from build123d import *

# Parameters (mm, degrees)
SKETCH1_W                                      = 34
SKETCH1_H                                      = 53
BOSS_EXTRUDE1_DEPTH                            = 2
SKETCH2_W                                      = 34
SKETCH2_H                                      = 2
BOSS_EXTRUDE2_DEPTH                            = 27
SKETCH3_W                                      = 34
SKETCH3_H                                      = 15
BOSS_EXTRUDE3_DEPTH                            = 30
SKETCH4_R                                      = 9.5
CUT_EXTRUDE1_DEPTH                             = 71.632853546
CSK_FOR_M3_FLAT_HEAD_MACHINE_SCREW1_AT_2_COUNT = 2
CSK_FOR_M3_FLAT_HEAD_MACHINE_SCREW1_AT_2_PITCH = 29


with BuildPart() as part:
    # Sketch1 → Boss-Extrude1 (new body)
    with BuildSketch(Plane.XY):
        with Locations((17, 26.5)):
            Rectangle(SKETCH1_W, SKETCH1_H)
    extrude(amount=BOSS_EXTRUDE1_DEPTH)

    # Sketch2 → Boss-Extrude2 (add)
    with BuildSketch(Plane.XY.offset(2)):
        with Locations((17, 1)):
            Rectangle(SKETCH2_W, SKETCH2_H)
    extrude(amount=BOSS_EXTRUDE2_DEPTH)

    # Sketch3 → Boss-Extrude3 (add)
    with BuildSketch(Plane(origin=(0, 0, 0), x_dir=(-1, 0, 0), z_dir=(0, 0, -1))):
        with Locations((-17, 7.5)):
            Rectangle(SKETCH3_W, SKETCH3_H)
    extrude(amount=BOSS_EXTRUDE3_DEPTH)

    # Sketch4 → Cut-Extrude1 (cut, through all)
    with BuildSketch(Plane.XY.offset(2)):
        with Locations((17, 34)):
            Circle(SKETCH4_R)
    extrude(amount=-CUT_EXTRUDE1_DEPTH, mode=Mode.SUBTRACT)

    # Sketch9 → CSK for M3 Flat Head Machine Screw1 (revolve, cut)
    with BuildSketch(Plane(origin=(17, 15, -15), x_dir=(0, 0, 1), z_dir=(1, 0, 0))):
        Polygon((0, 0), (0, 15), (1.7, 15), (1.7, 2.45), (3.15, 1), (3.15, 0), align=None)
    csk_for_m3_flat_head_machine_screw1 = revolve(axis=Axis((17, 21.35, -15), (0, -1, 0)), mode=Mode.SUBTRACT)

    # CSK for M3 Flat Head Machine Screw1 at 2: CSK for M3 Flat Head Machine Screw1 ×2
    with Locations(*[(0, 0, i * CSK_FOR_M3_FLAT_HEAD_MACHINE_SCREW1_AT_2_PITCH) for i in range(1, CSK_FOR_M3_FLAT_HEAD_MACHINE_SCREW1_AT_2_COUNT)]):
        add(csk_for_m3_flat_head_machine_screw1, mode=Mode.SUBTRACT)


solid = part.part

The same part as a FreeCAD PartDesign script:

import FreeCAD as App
import Part
import Sketcher
Q = App.Units.Quantity

doc = App.newDocument("Part")
params = doc.addObject("Spreadsheet::Sheet", "Params")
for row, (alias, value) in enumerate([
    ("sketch1_width", "34 mm"),
    ("sketch1_height", "53 mm"),
    ("pad1_length", "2 mm"),
    ("sketch2_width", "34 mm"),
    ("sketch2_height", "2 mm"),
    ("pad2_length", "27 mm"),
    ("sketch3_width", "34 mm"),
    ("sketch3_height", "15 mm"),
    ("pad3_length", "30 mm"),
    ("sketch4_diameter", "19 mm"),
    ("sketch5_width", "15 mm"),
    ("sketch5_width2", "1 mm"),
    ("sketch5_height", "1.7 mm"),
    ("sketch5_width3", "12.55 mm"),
    ("groove_angle", "360 deg"),
    ("linearpattern_pitch", "29 mm"),
], start=1):
    params.set(f"A{row}", alias)
    params.set(f"B{row}", "=" + value)
    params.setAlias(f"B{row}", alias)

body = doc.addObject("PartDesign::Body", "Body")

# Sketch on XY plane
sketch1 = doc.addObject("Sketcher::SketchObject", "Sketch")
body.addObject(sketch1)
sketch1.AttachmentSupport = (doc.XY_Plane, [""])
sketch1.MapMode = "FlatFace"
sketch1.addGeometry([
    Part.LineSegment(App.Vector(0, 53, 0), App.Vector(0, 0, 0)),
    Part.LineSegment(App.Vector(0, 0, 0), App.Vector(34, 0, 0)),
    Part.LineSegment(App.Vector(34, 0, 0), App.Vector(34, 53, 0)),
    Part.LineSegment(App.Vector(34, 53, 0), App.Vector(0, 53, 0)),
], False)
sketch1.addConstraint([
    Sketcher.Constraint("Coincident", 0, 2, 1, 1),
    Sketcher.Constraint("Coincident", 1, 2, 2, 1),
    Sketcher.Constraint("Coincident", 2, 2, 3, 1),
    Sketcher.Constraint("Coincident", 3, 2, 0, 1),
    Sketcher.Constraint("Vertical", 0),
    Sketcher.Constraint("Horizontal", 1),
    Sketcher.Constraint("Vertical", 2),
    Sketcher.Constraint("Horizontal", 3),
    Sketcher.Constraint("Coincident", 0, 2, -1, 1),
    Sketcher.Constraint("DistanceX", 1, 1, 1, 2, 34.0),
    Sketcher.Constraint("DistanceY", 0, 2, 0, 1, 53.0),
])
sketch1.setExpression("Constraints[9]", "Params.sketch1_width")
sketch1.setExpression("Constraints[10]", "Params.sketch1_height")
pad1 = doc.addObject("PartDesign::Pad", "Pad")
body.addObject(pad1)
pad1.Profile = sketch1
pad1.setExpression("Length", "Params.pad1_length")

# Sketch on XY plane
sketch2 = doc.addObject("Sketcher::SketchObject", "Sketch001")
body.addObject(sketch2)
sketch2.AttachmentSupport = (doc.XY_Plane, [""])
sketch2.MapMode = "FlatFace"
sketch2.AttachmentOffset = App.Placement(App.Vector(0, 0, 2), App.Rotation())
sketch2.addGeometry([
    Part.LineSegment(App.Vector(0, 2, 0), App.Vector(0, 0, 0)),
    Part.LineSegment(App.Vector(0, 0, 0), App.Vector(34, 0, 0)),
    Part.LineSegment(App.Vector(34, 0, 0), App.Vector(34, 2, 0)),
    Part.LineSegment(App.Vector(34, 2, 0), App.Vector(0, 2, 0)),
], False)
sketch2.addConstraint([
    Sketcher.Constraint("Coincident", 0, 2, 1, 1),
    Sketcher.Constraint("Coincident", 1, 2, 2, 1),
    Sketcher.Constraint("Coincident", 2, 2, 3, 1),
    Sketcher.Constraint("Coincident", 3, 2, 0, 1),
    Sketcher.Constraint("Vertical", 0),
    Sketcher.Constraint("Horizontal", 1),
    Sketcher.Constraint("Vertical", 2),
    Sketcher.Constraint("Horizontal", 3),
    Sketcher.Constraint("Coincident", 0, 2, -1, 1),
    Sketcher.Constraint("DistanceX", 1, 1, 1, 2, 34.0),
    Sketcher.Constraint("DistanceY", 0, 2, 0, 1, 2.0),
])
sketch2.setExpression("Constraints[9]", "Params.sketch2_width")
sketch2.setExpression("Constraints[10]", "Params.sketch2_height")
pad2 = doc.addObject("PartDesign::Pad", "Pad001")
body.addObject(pad2)
pad2.Profile = sketch2
pad2.setExpression("Length", "Params.pad2_length")

# Sketch on XY plane
sketch3 = doc.addObject("Sketcher::SketchObject", "Sketch002")
body.addObject(sketch3)
sketch3.AttachmentSupport = (doc.XY_Plane, [""])
sketch3.MapMode = "FlatFace"
sketch3.addGeometry([
    Part.LineSegment(App.Vector(34, 15, 0), App.Vector(34, 0, 0)),
    Part.LineSegment(App.Vector(34, 0, 0), App.Vector(0, 0, 0)),
    Part.LineSegment(App.Vector(0, 0, 0), App.Vector(0, 15, 0)),
    Part.LineSegment(App.Vector(0, 15, 0), App.Vector(34, 15, 0)),
], False)
sketch3.addConstraint([
    Sketcher.Constraint("Coincident", 0, 2, 1, 1),
    Sketcher.Constraint("Coincident", 1, 2, 2, 1),
    Sketcher.Constraint("Coincident", 2, 2, 3, 1),
    Sketcher.Constraint("Coincident", 3, 2, 0, 1),
    Sketcher.Constraint("Vertical", 0),
    Sketcher.Constraint("Horizontal", 1),
    Sketcher.Constraint("Vertical", 2),
    Sketcher.Constraint("Horizontal", 3),
    Sketcher.Constraint("Coincident", 1, 2, -1, 1),
    Sketcher.Constraint("DistanceX", 1, 2, 1, 1, 34.0),
    Sketcher.Constraint("DistanceY", 0, 2, 0, 1, 15.0),
])
sketch3.setExpression("Constraints[9]", "Params.sketch3_width")
sketch3.setExpression("Constraints[10]", "Params.sketch3_height")
pad3 = doc.addObject("PartDesign::Pad", "Pad002")
body.addObject(pad3)
pad3.Profile = sketch3
pad3.setExpression("Length", "Params.pad3_length")
pad3.Reversed = True

# Sketch on XY plane
sketch4 = doc.addObject("Sketcher::SketchObject", "Sketch003")
body.addObject(sketch4)
sketch4.AttachmentSupport = (doc.XY_Plane, [""])
sketch4.MapMode = "FlatFace"
sketch4.AttachmentOffset = App.Placement(App.Vector(0, 0, 2), App.Rotation())
sketch4.addGeometry(Part.Circle(App.Vector(17, 34, 0), App.Vector(0, 0, 1), 10), False)
sketch4.addConstraint([
    Sketcher.Constraint("Diameter", 0, 19.0),
    Sketcher.Constraint("DistanceX", -1, 1, 0, 3, 17.0),
    Sketcher.Constraint("DistanceY", -1, 1, 0, 3, 34.0),
])
sketch4.setExpression("Constraints[0]", "Params.sketch4_diameter")
pocket1 = doc.addObject("PartDesign::Pocket", "Pocket")
body.addObject(pocket1)
pocket1.Profile = sketch4
pocket1.Type = "ThroughAll"

# Sketch on YZ plane
sketch5 = doc.addObject("Sketcher::SketchObject", "Sketch004")
body.addObject(sketch5)
sketch5.AttachmentSupport = (doc.YZ_Plane, [""])
sketch5.MapMode = "FlatFace"
sketch5.AttachmentOffset = App.Placement(App.Vector(0, 0, 17), App.Rotation())
sketch5.addGeometry([
    Part.LineSegment(App.Vector(0, -15, 0), App.Vector(15, -15, 0)),  # 0
    Part.LineSegment(App.Vector(15, -15, 0), App.Vector(15, -11.8, 0)),  # 1
    Part.LineSegment(App.Vector(15, -11.8, 0), App.Vector(14, -11.8, 0)),  # 2
    Part.LineSegment(App.Vector(14, -11.8, 0), App.Vector(12.6, -13.3, 0)),  # 3
    Part.LineSegment(App.Vector(12.6, -13.3, 0), App.Vector(0, -13.3, 0)),  # 4
    Part.LineSegment(App.Vector(0, -13.3, 0), App.Vector(0, -15, 0)),  # 5
], False)
sketch5.addGeometry(Part.LineSegment(App.Vector(15, -15, 0), App.Vector(0, -15, 0)), True)  # axis
sketch5.addConstraint([
    Sketcher.Constraint("Coincident", 0, 2, 1, 1),
    Sketcher.Constraint("Coincident", 1, 2, 2, 1),
    Sketcher.Constraint("Coincident", 2, 2, 3, 1),
    Sketcher.Constraint("Coincident", 3, 2, 4, 1),
    Sketcher.Constraint("Coincident", 4, 2, 5, 1),
    Sketcher.Constraint("Coincident", 5, 2, 0, 1),
    Sketcher.Constraint("Horizontal", 0),
    Sketcher.Constraint("Vertical", 1),
    Sketcher.Constraint("Horizontal", 2),
    Sketcher.Constraint("Horizontal", 4),
    Sketcher.Constraint("Vertical", 5),
    Sketcher.Constraint("Horizontal", 6),
    Sketcher.Constraint("Coincident", 6, 1, 0, 2),
    Sketcher.Constraint("PointOnObject", 4, 2, -2),
    Sketcher.Constraint("PointOnObject", 6, 2, -2),
    Sketcher.Constraint("DistanceX", 0, 1, 0, 2, 15.0),
    Sketcher.Constraint("DistanceX", 2, 2, 2, 1, 1.0),
    Sketcher.Constraint("Angle", 3, Q("-135 deg")),
    Sketcher.Constraint("DistanceY", 5, 2, 5, 1, 1.7),
    Sketcher.Constraint("DistanceY", 0, 2, -1, 1, 15.0),
    Sketcher.Constraint("DistanceX", 4, 2, 4, 1, 12.55),
])
sketch5.setExpression("Constraints[15]", "Params.sketch5_width")
sketch5.setExpression("Constraints[16]", "Params.sketch5_width2")
sketch5.setExpression("Constraints[18]", "Params.sketch5_height")
sketch5.setExpression("Constraints[20]", "Params.sketch5_width3")
groove = doc.addObject("PartDesign::Groove", "Groove")
body.addObject(groove)
groove.Profile = sketch5
groove.ReferenceAxis = (sketch5, ["Axis0"])
groove.setExpression("Angle", "Params.groove_angle")
doc.recompute()

linearpattern = doc.addObject("PartDesign::LinearPattern", "LinearPattern")
body.addObject(linearpattern)
linearpattern.Originals = [groove]
linearpattern.Direction = (doc.Z_Axis, [""])
linearpattern.Mode = "offset"
linearpattern.setExpression("Offset", "Params.linearpattern_pitch")
linearpattern.Occurrences = 2
body.Tip = linearpattern

doc.recompute()
